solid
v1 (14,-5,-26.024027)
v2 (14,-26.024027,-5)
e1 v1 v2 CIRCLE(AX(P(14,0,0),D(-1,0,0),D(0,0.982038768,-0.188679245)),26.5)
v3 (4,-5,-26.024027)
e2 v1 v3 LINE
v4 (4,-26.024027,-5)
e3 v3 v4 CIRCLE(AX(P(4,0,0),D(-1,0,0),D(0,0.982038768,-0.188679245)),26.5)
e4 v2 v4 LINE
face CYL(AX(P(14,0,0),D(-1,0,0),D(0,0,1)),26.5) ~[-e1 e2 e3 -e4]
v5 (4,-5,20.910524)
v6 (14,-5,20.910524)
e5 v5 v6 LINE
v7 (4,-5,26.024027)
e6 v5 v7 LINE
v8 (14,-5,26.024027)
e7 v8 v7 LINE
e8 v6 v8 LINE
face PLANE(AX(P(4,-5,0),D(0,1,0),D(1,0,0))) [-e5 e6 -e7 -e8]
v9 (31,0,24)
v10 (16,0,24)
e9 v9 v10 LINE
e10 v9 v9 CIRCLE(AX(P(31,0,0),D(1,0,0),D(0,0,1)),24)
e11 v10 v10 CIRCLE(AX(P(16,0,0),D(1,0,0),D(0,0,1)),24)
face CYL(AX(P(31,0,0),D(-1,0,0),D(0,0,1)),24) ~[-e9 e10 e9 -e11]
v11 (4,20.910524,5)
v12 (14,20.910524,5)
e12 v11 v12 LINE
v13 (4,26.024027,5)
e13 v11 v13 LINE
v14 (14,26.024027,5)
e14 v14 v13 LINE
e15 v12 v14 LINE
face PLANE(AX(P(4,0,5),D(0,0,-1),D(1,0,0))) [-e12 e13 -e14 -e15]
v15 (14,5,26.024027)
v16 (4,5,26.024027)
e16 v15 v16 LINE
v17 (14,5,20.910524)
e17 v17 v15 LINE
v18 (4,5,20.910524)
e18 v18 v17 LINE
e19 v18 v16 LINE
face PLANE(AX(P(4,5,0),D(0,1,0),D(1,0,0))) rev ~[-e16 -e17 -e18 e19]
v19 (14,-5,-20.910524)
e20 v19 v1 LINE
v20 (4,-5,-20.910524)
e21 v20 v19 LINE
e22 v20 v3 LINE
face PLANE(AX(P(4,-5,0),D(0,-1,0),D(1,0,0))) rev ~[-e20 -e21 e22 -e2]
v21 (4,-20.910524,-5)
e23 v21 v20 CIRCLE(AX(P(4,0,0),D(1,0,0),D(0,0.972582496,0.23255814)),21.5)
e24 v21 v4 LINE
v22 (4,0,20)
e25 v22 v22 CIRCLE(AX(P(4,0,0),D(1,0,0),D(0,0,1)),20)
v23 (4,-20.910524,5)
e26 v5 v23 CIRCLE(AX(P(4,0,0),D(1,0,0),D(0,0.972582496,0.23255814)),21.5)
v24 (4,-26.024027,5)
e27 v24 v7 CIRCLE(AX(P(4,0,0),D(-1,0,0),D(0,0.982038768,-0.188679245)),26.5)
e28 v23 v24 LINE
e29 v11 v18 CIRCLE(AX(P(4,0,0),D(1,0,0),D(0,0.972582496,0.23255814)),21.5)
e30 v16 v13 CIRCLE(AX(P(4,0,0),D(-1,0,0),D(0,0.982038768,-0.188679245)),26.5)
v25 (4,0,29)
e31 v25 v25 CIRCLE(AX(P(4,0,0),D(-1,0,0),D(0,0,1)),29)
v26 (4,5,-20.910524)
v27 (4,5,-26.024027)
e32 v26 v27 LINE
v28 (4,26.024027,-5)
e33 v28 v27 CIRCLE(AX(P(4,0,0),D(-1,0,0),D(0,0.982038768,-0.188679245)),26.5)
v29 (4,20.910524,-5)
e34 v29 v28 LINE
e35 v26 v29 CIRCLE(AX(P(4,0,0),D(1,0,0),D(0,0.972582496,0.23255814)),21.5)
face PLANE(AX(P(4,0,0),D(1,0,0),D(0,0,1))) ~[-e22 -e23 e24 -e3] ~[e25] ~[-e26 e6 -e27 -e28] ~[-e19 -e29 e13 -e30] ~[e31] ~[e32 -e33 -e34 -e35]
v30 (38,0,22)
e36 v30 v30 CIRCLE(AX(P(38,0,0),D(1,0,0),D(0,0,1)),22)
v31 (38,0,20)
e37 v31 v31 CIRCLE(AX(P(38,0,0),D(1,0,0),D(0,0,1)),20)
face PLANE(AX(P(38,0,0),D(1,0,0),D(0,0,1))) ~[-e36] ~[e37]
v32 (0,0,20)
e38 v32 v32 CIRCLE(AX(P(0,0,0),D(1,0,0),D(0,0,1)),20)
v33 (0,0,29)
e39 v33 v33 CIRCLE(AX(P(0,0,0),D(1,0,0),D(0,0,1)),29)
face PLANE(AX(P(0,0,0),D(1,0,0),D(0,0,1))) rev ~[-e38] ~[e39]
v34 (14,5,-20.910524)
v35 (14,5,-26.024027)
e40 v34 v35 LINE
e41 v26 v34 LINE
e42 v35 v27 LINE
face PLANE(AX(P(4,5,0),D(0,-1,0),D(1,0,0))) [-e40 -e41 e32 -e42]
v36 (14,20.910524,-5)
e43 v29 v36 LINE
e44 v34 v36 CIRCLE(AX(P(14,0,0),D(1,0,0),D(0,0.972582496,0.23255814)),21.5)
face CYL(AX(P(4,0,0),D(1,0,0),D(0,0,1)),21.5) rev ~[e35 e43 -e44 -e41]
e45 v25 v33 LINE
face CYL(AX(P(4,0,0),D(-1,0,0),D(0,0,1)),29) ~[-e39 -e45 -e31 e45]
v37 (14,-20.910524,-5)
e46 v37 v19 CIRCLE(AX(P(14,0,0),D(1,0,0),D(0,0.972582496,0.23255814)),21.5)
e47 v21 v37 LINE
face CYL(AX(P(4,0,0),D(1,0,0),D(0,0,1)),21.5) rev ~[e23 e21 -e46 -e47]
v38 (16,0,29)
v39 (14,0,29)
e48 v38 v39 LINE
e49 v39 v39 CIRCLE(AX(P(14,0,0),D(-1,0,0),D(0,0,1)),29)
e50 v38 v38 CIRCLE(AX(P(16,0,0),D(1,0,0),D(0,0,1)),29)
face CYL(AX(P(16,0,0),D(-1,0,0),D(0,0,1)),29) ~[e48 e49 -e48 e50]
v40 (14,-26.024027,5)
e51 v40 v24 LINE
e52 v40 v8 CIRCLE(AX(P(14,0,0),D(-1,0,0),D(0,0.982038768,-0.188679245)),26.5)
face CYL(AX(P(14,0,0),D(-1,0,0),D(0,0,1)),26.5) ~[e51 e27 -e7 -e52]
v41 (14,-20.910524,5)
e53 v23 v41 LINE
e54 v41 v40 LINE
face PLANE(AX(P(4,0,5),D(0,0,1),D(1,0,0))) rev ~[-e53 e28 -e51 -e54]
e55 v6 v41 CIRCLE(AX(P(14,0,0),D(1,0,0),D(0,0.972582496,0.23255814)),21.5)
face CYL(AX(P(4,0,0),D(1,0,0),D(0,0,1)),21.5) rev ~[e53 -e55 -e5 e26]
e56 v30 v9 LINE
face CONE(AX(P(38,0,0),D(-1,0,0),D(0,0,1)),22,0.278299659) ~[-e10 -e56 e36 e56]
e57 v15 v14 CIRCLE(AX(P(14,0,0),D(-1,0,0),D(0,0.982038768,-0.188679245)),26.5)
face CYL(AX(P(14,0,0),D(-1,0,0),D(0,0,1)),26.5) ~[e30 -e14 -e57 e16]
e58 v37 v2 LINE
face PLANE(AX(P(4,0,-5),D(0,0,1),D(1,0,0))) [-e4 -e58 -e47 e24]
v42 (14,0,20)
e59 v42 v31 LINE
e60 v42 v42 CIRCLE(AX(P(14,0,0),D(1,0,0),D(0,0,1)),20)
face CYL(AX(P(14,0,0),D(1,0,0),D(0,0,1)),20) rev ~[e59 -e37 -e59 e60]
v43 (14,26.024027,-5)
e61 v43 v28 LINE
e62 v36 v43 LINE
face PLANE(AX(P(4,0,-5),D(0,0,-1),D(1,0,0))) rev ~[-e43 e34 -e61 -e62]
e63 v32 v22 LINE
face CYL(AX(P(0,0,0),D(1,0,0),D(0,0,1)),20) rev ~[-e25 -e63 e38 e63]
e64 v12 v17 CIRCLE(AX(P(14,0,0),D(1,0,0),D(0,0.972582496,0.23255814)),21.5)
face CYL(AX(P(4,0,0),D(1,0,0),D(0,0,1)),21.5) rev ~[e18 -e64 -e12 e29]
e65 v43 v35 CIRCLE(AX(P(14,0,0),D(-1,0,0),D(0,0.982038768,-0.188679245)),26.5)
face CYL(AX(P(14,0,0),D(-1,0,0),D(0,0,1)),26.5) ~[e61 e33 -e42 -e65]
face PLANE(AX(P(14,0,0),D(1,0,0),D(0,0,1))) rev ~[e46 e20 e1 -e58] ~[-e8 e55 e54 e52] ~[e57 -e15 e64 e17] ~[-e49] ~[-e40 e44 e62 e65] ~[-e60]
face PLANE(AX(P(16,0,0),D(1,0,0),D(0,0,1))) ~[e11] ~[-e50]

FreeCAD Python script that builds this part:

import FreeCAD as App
import Part
import Sketcher
from FreeCAD import Vector
Q = App.Units.Quantity


def add_polygon(sketch, points):
    """Adds a closed chain of lines whose ends are joined by coincident constraints."""
    first, n = sketch.GeometryCount, len(points)
    for a, b in zip(points, points[1:] + points[:1]):
        sketch.addGeometry(Part.LineSegment(App.Vector(*a, 0), App.Vector(*b, 0)), False)
    for i in range(n):
        sketch.addConstraint(Sketcher.Constraint("Coincident", first + i, 2, first + (i + 1) % n, 1))

doc = App.newDocument("Part")
body = doc.addObject("PartDesign::Body", "Body")

sketch1 = body.newObject("Sketcher::SketchObject", "Sketch")
sketch1.AttachmentSupport = (doc.getObject("XZ_Plane"), [""])
sketch1.MapMode = "FlatFace"
add_polygon(sketch1, [(0, 29), (0, 20), (4, 20), (4, 21.5), (14, 21.5), (14, 20), (38, 20), (38, 22), (31, 24), (16, 24), (16, 29), (14, 29), (14, 26.5), (4, 26.5), (4, 29)])
sketch1.addConstraint(Sketcher.Constraint("Vertical", 0))
sketch1.addConstraint(Sketcher.Constraint("Horizontal", 1))
sketch1.addConstraint(Sketcher.Constraint("Vertical", 2))
sketch1.addConstraint(Sketcher.Constraint("Horizontal", 3))
sketch1.addConstraint(Sketcher.Constraint("Vertical", 4))
sketch1.addConstraint(Sketcher.Constraint("Horizontal", 5))
sketch1.addConstraint(Sketcher.Constraint("Vertical", 6))
sketch1.addConstraint(Sketcher.Constraint("Horizontal", 8))
sketch1.addConstraint(Sketcher.Constraint("Vertical", 9))
sketch1.addConstraint(Sketcher.Constraint("Horizontal", 10))
sketch1.addConstraint(Sketcher.Constraint("Vertical", 11))
sketch1.addConstraint(Sketcher.Constraint("Horizontal", 12))
sketch1.addConstraint(Sketcher.Constraint("Vertical", 13))
sketch1.addConstraint(Sketcher.Constraint("Horizontal", 14))
sketch1.addConstraint(Sketcher.Constraint("PointOnObject", 0, 2, -2))
sketch1.addConstraint(Sketcher.Constraint("Horizontal", 1, 2, 4, 2))
sketch1.addConstraint(Sketcher.Constraint("Horizontal", 10, 2, 13, 2))
sketch1.addConstraint(Sketcher.Constraint("Vertical", 4, 2, 10, 2))
sketch1.addConstraint(Sketcher.Constraint("Vertical", 2, 2, 12, 2))
sketch1.addConstraint(Sketcher.Constraint("Equal", 10, 6))
sketch1.addConstraint(Sketcher.Constraint("DistanceX", 1, 1, 1, 2, Q("4 mm")))
sketch1.addConstraint(Sketcher.Constraint("DistanceX", 3, 1, 3, 2, Q("10 mm")))
sketch1.addConstraint(Sketcher.Constraint("DistanceX", 5, 1, 5, 2, Q("24 mm")))
sketch1.addConstraint(Sketcher.Constraint("DistanceX", 8, 2, 8, 1, Q("15 mm")))
sketch1.addConstraint(Sketcher.Constraint("DistanceX", 10, 2, 10, 1, Q("2 mm")))
sketch1.addConstraint(Sketcher.Constraint("DistanceY", 0, 2, 0, 1, Q("9 mm")))
sketch1.addConstraint(Sketcher.Constraint("DistanceY", 9, 1, 9, 2, Q("5 mm")))
sketch1.addConstraint(Sketcher.Constraint("DistanceY", 2, 1, 2, 2, Q("1.5 mm")))
sketch1.addConstraint(Sketcher.Constraint("DistanceY", 11, 2, 11, 1, Q("2.5 mm")))
sketch1.addConstraint(Sketcher.Constraint("DistanceY", -1, 1, 0, 2, Q("20 mm")))
revolution = body.newObject("PartDesign::Revolution", "Revolution")
revolution.Profile = sketch1
revolution.ReferenceAxis = (sketch1, ["H_Axis"])
revolution.Angle = 360

sketch2 = body.newObject("Sketcher::SketchObject", "Sketch001")
sketch2.AttachmentSupport = (doc.getObject("XZ_Plane"), [""])
sketch2.MapMode = "FlatFace"
add_polygon(sketch2, [(4, 5), (4, -5), (14, -5), (14, 5)])
sketch2.addConstraint(Sketcher.Constraint("Vertical", 0))
sketch2.addConstraint(Sketcher.Constraint("Horizontal", 1))
sketch2.addConstraint(Sketcher.Constraint("Vertical", 2))
sketch2.addConstraint(Sketcher.Constraint("Horizontal", 3))
sketch2.addConstraint(Sketcher.Constraint("Equal", 3, 0))
sketch2.addConstraint(Sketcher.Constraint("DistanceX", 1, 1, 1, 2, Q("10 mm")))
sketch2.addConstraint(Sketcher.Constraint("DistanceX", -1, 1, 0, 2, Q("4 mm")))
sketch2.addConstraint(Sketcher.Constraint("DistanceY", 0, 2, -1, 1, Q("5 mm")))
pocket1 = body.newObject("PartDesign::Pocket", "Pocket")
pocket1.Profile = sketch2
pocket1.Type = "ThroughAll"
pocket1.Midplane = True

sketch3 = body.newObject("Sketcher::SketchObject", "Sketch002")
sketch3.AttachmentSupport = (doc.getObject("XY_Plane"), [""])
sketch3.MapMode = "FlatFace"
add_polygon(sketch3, [(4, 5), (4, -5), (14, -5), (14, 5)])
sketch3.addConstraint(Sketcher.Constraint("Vertical", 0))
sketch3.addConstraint(Sketcher.Constraint("Horizontal", 1))
sketch3.addConstraint(Sketcher.Constraint("Vertical", 2))
sketch3.addConstraint(Sketcher.Constraint("Horizontal", 3))
sketch3.addConstraint(Sketcher.Constraint("Equal", 3, 0))
sketch3.addConstraint(Sketcher.Constraint("DistanceX", 1, 1, 1, 2, Q("10 mm")))
sketch3.addConstraint(Sketcher.Constraint("DistanceX", -1, 1, 0, 2, Q("4 mm")))
sketch3.addConstraint(Sketcher.Constraint("DistanceY", 0, 2, -1, 1, Q("5 mm")))
pocket2 = body.newObject("PartDesign::Pocket", "Pocket001")
pocket2.Profile = sketch3
pocket2.Type = "ThroughAll"
pocket2.Midplane = True

doc.recompute()
